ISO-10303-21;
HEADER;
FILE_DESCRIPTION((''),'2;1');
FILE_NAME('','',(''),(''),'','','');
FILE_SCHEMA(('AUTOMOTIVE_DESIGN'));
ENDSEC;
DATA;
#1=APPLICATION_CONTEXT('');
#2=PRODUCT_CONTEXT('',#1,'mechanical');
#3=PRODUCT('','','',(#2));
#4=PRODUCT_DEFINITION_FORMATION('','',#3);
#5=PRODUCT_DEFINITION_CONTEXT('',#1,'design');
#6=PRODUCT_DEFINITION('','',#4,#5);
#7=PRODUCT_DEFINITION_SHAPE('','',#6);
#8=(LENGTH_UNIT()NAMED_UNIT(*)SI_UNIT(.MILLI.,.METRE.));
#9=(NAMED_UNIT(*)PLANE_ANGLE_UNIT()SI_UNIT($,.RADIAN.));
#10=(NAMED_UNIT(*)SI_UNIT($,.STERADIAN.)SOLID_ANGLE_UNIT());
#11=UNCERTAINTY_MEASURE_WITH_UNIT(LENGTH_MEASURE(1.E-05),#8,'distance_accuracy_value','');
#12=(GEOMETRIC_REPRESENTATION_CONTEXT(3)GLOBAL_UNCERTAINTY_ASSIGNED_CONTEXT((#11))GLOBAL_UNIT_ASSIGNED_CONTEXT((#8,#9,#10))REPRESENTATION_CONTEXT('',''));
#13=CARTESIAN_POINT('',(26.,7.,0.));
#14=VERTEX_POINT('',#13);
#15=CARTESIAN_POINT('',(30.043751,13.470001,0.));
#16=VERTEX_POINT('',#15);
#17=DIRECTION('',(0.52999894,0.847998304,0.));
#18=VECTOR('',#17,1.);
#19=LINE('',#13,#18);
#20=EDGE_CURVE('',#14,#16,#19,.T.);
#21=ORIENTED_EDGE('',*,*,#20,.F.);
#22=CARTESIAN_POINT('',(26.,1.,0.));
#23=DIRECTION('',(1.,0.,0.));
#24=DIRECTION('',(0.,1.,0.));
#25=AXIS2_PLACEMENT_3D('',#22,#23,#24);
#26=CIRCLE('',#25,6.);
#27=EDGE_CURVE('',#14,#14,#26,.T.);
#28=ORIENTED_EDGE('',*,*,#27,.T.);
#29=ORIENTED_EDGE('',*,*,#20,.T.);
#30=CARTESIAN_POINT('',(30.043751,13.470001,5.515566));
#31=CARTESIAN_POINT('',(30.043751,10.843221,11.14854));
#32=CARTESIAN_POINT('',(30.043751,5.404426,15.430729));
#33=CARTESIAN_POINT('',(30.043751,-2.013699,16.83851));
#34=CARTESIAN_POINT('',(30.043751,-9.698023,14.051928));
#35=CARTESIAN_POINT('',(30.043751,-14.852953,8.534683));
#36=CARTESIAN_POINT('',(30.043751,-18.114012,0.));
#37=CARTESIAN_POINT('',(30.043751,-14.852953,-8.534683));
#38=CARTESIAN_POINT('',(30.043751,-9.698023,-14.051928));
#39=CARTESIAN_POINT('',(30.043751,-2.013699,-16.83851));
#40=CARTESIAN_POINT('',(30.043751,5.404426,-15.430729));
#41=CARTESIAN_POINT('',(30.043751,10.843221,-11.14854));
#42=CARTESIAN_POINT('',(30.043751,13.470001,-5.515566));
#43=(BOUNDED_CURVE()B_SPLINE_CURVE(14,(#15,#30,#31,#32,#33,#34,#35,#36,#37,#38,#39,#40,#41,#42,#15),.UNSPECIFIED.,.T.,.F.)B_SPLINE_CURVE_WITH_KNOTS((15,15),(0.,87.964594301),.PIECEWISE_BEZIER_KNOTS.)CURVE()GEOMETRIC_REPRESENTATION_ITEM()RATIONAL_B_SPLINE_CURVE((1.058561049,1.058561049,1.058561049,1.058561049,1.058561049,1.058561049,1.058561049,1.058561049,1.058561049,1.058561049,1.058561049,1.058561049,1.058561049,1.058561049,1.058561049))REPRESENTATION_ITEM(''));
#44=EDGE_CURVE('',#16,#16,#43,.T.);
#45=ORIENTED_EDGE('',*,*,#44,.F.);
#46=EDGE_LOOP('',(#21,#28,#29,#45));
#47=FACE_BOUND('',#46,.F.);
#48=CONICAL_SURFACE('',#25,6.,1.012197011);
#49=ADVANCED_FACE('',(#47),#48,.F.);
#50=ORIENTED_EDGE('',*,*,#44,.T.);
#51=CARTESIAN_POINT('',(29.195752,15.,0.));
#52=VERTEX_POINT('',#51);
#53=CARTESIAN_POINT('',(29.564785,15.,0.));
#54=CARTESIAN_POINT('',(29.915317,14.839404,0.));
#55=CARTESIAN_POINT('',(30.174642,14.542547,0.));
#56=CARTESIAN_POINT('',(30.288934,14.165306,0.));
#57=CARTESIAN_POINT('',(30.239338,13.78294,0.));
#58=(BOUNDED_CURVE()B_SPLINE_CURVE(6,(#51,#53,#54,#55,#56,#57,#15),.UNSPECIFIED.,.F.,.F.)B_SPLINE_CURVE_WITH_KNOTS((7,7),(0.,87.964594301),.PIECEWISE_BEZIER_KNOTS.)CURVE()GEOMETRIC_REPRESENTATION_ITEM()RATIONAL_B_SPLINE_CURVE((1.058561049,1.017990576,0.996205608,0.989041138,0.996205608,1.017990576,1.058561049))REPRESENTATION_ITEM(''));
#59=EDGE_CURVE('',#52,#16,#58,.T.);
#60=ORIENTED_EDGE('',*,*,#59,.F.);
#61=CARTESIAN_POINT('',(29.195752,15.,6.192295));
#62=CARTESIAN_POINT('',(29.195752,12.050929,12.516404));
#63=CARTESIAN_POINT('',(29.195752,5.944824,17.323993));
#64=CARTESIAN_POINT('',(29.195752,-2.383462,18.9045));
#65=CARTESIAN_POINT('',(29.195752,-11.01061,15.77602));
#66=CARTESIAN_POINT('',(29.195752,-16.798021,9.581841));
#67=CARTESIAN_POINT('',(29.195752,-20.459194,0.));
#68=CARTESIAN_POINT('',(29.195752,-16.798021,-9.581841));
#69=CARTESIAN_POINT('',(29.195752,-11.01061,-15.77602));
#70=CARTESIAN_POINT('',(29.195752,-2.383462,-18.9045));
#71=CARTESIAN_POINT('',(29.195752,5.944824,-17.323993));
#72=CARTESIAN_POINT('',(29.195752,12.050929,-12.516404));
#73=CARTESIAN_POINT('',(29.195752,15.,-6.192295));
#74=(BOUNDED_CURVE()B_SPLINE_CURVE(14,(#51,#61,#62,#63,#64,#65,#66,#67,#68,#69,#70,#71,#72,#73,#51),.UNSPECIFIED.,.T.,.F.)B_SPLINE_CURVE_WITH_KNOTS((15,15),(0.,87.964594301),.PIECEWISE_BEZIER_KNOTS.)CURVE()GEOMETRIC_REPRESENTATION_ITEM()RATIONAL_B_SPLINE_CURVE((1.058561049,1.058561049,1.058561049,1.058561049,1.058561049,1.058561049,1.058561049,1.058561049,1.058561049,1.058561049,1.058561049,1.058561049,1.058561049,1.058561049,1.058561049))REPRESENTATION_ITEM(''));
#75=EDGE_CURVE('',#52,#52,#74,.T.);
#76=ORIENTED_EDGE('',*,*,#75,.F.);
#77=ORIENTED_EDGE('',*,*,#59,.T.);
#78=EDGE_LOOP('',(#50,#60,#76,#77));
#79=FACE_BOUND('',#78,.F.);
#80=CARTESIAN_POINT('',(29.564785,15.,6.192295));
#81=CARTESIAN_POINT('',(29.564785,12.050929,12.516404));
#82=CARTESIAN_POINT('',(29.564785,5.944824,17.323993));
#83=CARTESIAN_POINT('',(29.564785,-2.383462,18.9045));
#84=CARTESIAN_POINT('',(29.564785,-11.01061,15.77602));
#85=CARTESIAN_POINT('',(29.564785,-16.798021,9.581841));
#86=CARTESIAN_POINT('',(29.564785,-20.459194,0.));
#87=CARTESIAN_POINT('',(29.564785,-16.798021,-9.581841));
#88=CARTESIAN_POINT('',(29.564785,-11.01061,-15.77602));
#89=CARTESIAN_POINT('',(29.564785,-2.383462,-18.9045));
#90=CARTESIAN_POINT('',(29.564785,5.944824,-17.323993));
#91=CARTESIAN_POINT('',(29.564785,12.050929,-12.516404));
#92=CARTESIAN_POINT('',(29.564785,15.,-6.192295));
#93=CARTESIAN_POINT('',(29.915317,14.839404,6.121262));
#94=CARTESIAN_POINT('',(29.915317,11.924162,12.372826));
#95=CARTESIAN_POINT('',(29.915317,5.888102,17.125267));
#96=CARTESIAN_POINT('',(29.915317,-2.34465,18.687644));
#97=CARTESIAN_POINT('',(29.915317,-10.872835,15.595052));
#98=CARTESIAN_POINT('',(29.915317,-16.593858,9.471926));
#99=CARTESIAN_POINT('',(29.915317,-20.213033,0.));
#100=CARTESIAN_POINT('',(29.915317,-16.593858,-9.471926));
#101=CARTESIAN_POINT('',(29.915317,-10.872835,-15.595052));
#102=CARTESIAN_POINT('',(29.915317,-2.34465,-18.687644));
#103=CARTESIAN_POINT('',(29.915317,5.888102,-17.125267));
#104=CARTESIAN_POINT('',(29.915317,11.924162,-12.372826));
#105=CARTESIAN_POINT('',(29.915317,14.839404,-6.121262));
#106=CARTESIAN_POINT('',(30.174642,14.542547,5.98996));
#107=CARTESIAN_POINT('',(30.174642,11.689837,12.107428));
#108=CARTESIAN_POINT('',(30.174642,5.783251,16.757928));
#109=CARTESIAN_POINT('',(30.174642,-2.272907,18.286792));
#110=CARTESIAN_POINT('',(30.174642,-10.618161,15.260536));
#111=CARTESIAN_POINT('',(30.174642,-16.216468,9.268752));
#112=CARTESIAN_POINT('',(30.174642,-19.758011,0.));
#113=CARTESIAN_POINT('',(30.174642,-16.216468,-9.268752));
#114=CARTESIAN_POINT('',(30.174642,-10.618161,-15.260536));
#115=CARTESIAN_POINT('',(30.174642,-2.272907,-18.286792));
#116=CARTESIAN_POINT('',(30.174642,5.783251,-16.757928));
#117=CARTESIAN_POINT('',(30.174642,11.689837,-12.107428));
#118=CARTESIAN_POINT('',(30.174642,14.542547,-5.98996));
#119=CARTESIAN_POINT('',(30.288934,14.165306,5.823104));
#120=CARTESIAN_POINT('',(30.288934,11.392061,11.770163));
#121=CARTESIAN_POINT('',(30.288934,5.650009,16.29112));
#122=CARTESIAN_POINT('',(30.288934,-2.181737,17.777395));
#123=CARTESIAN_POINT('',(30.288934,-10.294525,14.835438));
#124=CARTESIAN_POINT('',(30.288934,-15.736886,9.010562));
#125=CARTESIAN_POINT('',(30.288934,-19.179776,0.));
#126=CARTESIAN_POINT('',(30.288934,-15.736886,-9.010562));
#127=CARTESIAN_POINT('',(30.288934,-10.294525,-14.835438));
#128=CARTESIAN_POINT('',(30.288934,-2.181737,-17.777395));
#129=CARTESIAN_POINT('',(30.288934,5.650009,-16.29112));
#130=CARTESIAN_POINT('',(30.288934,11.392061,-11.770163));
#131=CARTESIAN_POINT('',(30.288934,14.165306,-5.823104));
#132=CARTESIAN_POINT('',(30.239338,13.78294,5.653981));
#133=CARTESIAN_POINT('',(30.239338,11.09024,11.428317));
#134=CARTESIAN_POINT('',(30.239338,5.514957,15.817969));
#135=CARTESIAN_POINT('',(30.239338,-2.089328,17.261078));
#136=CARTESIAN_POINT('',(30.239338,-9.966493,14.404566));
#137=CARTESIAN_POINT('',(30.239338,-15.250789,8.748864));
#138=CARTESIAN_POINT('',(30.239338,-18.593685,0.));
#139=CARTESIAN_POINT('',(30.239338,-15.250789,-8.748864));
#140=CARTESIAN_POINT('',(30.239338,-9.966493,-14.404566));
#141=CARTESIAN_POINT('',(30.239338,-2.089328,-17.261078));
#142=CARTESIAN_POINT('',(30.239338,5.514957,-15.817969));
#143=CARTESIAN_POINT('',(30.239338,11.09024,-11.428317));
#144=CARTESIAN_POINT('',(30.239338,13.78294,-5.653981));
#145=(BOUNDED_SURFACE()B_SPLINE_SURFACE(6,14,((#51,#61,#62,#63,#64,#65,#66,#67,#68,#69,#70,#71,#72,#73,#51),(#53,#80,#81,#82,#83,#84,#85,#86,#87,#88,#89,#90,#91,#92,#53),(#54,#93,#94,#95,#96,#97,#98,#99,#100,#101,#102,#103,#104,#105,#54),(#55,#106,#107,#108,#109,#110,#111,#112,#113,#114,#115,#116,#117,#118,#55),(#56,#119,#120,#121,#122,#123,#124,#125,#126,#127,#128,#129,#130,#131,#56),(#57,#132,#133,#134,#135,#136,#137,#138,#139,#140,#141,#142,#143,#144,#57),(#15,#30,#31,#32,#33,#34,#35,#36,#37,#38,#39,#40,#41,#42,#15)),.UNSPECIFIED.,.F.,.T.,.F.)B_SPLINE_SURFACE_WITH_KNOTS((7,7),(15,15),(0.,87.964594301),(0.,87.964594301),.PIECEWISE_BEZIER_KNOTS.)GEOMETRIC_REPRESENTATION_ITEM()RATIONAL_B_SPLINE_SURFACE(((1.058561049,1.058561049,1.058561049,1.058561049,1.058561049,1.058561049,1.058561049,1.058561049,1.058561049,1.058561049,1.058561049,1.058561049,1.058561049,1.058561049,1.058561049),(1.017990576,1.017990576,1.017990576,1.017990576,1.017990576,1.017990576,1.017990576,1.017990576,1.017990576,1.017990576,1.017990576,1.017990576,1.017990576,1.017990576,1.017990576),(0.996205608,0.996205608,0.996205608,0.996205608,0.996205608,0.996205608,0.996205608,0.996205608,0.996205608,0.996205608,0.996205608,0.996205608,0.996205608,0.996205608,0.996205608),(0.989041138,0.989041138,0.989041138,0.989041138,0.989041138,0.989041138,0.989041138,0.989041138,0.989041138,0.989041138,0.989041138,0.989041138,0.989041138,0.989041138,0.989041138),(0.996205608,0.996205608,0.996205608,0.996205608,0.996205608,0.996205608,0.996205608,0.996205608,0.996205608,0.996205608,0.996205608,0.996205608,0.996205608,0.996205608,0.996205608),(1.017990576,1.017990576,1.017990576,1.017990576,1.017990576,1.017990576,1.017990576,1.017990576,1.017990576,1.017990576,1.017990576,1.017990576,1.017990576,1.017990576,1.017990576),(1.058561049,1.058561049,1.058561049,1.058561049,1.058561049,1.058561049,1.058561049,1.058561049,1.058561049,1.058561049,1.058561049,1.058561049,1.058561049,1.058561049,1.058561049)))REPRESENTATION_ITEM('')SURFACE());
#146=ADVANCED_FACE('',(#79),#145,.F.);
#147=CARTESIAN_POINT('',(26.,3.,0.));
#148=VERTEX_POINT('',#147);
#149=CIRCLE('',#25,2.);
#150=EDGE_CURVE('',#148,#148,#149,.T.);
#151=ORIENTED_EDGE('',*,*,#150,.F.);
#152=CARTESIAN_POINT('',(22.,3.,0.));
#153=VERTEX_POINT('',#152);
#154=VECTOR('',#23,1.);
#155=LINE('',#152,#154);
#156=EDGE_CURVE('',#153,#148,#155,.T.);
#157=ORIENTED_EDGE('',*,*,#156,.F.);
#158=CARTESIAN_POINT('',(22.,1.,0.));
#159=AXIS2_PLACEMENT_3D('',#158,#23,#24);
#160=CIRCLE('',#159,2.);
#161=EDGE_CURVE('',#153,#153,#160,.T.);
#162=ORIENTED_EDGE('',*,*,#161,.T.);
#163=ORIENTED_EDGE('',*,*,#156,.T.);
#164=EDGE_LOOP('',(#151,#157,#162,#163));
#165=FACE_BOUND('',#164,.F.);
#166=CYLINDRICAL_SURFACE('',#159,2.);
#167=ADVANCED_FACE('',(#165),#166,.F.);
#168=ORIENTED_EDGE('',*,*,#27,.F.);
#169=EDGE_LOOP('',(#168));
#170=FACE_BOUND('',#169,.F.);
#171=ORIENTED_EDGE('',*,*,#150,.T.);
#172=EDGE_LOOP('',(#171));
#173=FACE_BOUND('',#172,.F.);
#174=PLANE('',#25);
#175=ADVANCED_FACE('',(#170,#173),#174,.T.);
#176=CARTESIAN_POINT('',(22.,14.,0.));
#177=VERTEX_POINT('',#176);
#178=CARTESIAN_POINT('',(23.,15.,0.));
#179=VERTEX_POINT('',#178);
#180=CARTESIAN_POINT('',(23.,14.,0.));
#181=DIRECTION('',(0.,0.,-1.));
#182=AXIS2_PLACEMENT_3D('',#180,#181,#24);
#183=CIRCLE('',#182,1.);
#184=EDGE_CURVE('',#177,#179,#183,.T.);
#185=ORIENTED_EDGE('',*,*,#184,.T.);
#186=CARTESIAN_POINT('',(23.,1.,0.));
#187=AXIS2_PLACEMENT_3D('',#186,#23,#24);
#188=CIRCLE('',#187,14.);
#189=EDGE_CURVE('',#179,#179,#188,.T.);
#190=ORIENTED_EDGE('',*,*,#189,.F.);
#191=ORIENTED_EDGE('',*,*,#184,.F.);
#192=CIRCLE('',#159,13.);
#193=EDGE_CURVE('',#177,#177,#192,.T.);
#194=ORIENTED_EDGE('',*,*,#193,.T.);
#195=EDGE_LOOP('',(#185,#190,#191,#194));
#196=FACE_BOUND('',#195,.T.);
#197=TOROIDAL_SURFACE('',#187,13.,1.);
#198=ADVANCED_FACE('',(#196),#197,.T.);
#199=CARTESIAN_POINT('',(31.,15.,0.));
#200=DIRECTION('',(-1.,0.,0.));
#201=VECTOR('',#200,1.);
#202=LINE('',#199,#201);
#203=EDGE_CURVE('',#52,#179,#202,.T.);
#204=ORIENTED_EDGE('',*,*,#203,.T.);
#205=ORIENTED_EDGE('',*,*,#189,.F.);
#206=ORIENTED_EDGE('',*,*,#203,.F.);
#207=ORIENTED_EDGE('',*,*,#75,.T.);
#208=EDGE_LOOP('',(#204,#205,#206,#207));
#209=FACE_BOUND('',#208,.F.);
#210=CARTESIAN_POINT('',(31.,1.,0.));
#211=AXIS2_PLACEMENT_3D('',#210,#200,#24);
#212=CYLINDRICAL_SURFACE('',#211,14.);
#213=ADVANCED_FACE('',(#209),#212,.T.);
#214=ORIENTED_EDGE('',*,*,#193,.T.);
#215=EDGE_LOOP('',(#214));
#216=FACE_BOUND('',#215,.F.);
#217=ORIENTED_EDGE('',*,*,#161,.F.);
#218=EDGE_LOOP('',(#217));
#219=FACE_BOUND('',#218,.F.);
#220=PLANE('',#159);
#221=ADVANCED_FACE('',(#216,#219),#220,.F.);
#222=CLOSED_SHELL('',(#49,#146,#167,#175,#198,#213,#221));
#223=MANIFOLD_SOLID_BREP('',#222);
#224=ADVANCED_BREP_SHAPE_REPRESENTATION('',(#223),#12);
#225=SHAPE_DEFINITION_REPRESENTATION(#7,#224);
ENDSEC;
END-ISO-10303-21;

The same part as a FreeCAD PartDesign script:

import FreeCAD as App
import Part
import Sketcher
from FreeCAD import Vector


def edges_at(feature, points):
    """Names of the edges that pass closest to the given points."""
    edges = feature.Shape.Edges
    near = lambda p: min(range(len(edges)), key=lambda i: edges[i].distToShape(Part.Vertex(*p))[0])
    return sorted({f"Edge{near(p) + 1}" for p in points})


def add_polygon(sketch, points):
    """Adds a closed chain of lines whose ends are joined by coincident constraints."""
    first, n = sketch.GeometryCount, len(points)
    for a, b in zip(points, points[1:] + points[:1]):
        sketch.addGeometry(Part.LineSegment(App.Vector(*a, 0), App.Vector(*b, 0)), False)
    for i in range(n):
        sketch.addConstraint(Sketcher.Constraint("Coincident", first + i, 2, first + (i + 1) % n, 1))

doc = App.newDocument("Part")
params = doc.addObject("Spreadsheet::Sheet", "Params")
for row, (alias, value) in enumerate([
    ("sketch1_width", "4 mm"),
    ("sketch1_width2", "9 mm"),
    ("sketch1_height", "12 mm"),
    ("revolution_angle", "360 deg"),
    ("fillet_radius", "1 mm"),
    ("fillet2_radius", "1 mm"),
], start=1):
    params.set(f"A{row}", alias)
    params.set(f"B{row}", "=" + value)
    params.setAlias(f"B{row}", alias)

body = doc.addObject("PartDesign::Body", "Body")

sketch1 = body.newObject("Sketcher::SketchObject", "Sketch")
sketch1.AttachmentSupport = (doc.getObject("XY_Plane"), [""])
sketch1.MapMode = "FlatFace"
add_polygon(sketch1, [(2, 14), (2, 2), (6, 2), (6, 6), (11, 14)])
sketch1.addConstraint([
    Sketcher.Constraint("Vertical", 0),
    Sketcher.Constraint("Horizontal", 1),
    Sketcher.Constraint("Vertical", 2),
    Sketcher.Constraint("Horizontal", 4),
    Sketcher.Constraint("Equal", 1, 2),
    Sketcher.Constraint("DistanceX", 1, 1, 1, 2, 4.0),
    Sketcher.Constraint("DistanceX", 4, 2, 4, 1, 9.0),
    Sketcher.Constraint("DistanceY", 0, 2, 0, 1, 12.0),
    Sketcher.Constraint("DistanceX", -1, 1, 0, 2, 2.0),
    Sketcher.Constraint("DistanceY", -1, 1, 0, 2, 2.0),
])
sketch1.setExpression("Constraints[10]", "Params.sketch1_width")
sketch1.setExpression("Constraints[11]", "Params.sketch1_width2")
sketch1.setExpression("Constraints[12]", "Params.sketch1_height")
revolution = body.newObject("PartDesign::Revolution", "Revolution")
revolution.Profile = sketch1
revolution.ReferenceAxis = (sketch1, ["H_Axis"])
revolution.setExpression("Angle", "Params.revolution_angle")
doc.recompute()

fillet = body.newObject("PartDesign::Fillet", "Fillet")
fillet.Base = (revolution, edges_at(revolution, [(2, -14, 0)]))
fillet.setExpression("Radius", "Params.fillet_radius")
doc.recompute()

fillet2 = body.newObject("PartDesign::Fillet", "Fillet001")
fillet2.Base = (fillet, edges_at(fillet, [(11, -14, 0)]))
fillet2.setExpression("Radius", "Params.fillet2_radius")
body2 = doc.addObject("PartDesign::Body", "Body001")
doc.recompute()

body.Placement = App.Placement(Vector(20, 1, 0), App.Rotation(Vector(0, 0, 1), 0))
boolean = body2.newObject("PartDesign::Boolean", "Boolean")
boolean.Type = "Fuse"
boolean.addObjects([body])

doc.recompute()
